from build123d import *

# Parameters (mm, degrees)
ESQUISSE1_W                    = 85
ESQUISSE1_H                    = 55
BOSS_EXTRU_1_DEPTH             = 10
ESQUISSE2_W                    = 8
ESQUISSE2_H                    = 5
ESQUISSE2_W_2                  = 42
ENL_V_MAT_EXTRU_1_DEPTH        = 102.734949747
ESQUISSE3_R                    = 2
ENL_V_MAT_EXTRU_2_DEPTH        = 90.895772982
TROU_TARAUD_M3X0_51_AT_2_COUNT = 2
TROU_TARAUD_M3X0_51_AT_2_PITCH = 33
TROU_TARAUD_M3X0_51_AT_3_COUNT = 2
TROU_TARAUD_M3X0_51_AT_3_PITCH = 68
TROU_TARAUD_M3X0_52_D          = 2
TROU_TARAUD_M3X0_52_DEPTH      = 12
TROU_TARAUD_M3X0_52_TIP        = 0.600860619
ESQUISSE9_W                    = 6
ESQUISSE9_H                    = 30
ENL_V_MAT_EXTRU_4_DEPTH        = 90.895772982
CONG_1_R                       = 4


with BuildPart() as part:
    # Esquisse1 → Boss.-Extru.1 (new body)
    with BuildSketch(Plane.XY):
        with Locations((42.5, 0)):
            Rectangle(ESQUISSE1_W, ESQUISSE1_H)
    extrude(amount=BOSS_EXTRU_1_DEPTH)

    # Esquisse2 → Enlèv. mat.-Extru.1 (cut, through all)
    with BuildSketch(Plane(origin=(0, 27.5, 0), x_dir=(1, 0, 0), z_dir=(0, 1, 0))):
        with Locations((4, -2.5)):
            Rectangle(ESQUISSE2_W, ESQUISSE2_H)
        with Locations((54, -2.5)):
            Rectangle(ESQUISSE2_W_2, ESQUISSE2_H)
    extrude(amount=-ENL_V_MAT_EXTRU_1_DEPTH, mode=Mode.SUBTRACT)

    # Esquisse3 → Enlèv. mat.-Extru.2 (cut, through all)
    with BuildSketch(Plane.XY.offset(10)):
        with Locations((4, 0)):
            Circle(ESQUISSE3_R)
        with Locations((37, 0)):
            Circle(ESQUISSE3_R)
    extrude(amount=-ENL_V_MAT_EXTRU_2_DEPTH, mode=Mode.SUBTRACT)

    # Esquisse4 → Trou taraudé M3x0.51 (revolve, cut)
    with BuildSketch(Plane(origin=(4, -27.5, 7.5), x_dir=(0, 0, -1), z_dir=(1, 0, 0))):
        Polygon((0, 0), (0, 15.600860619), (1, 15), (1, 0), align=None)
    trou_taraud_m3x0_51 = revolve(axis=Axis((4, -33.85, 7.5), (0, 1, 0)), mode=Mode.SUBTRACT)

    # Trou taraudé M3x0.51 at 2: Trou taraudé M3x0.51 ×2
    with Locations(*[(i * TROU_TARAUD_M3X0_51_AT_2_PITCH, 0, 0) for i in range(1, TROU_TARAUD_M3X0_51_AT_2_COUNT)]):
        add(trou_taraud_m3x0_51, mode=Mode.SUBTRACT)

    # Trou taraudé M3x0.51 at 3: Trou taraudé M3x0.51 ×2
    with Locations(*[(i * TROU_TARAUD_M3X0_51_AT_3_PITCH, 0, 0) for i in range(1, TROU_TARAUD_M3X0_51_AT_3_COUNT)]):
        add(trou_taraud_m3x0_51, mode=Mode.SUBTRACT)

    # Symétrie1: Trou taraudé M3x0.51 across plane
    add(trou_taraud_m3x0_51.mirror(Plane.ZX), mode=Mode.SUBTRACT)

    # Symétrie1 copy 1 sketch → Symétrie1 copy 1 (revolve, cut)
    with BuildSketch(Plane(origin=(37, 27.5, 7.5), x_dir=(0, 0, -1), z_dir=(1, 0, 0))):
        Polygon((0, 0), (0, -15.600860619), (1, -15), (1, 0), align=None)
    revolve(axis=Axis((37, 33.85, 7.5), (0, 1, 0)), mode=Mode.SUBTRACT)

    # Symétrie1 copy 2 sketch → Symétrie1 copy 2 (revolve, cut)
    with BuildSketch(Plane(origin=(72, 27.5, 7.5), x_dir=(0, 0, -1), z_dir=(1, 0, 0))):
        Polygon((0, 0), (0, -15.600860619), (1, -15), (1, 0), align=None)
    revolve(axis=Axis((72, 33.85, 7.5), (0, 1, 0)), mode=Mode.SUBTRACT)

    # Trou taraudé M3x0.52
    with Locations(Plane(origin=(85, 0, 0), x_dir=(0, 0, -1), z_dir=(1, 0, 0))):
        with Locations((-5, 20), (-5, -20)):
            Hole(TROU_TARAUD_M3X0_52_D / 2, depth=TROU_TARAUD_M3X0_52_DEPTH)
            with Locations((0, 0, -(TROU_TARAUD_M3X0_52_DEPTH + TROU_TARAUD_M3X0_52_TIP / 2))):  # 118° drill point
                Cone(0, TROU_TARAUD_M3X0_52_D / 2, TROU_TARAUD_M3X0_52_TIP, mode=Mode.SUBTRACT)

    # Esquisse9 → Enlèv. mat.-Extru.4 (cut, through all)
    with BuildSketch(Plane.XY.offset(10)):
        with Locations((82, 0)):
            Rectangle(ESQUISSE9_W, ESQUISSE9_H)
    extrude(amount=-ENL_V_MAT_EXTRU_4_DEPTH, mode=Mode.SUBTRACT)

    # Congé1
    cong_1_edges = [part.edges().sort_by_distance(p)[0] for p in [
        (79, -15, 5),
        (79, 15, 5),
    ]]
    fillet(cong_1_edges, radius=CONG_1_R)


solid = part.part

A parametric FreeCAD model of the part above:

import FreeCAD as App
import Part
import Sketcher
from FreeCAD import Vector
Q = App.Units.Quantity


def edges_at(feature, points):
    """Names of the edges that pass closest to the given points."""
    edges = feature.Shape.Edges
    near = lambda p: min(range(len(edges)), key=lambda i: edges[i].distToShape(Part.Vertex(*p))[0])
    return sorted({f"Edge{near(p) + 1}" for p in points})

doc = App.newDocument("Part")
body = doc.addObject("PartDesign::Body", "Body")

sketch1 = doc.addObject("Sketcher::SketchObject", "Sketch")
body.addObject(sketch1)
sketch1.AttachmentSupport = (doc.XY_Plane, [""])
sketch1.MapMode = "FlatFace"
sketch1.addGeometry([
    Part.LineSegment(Vector(0, 28, 0), Vector(0, -28, 0)),
    Part.LineSegment(Vector(0, -28, 0), Vector(85, -28, 0)),
    Part.LineSegment(Vector(85, -28, 0), Vector(85, 28, 0)),
    Part.LineSegment(Vector(85, 28, 0), Vector(0, 28, 0)),
], False)
sketch1.addConstraint([
    Sketcher.Constraint("Coincident", 0, 2, 1, 1),
    Sketcher.Constraint("Coincident", 1, 2, 2, 1),
    Sketcher.Constraint("Coincident", 2, 2, 3, 1),
    Sketcher.Constraint("Coincident", 3, 2, 0, 1),
    Sketcher.Constraint("Vertical", 0),
    Sketcher.Constraint("Horizontal", 1),
    Sketcher.Constraint("Vertical", 2),
    Sketcher.Constraint("Horizontal", 3),
    Sketcher.Constraint("Symmetric", 0, 2, 3, 2, -1, 1),
    Sketcher.Constraint("DistanceX", 1, 1, 1, 2, Q("85 mm")),
    Sketcher.Constraint("DistanceY", 0, 2, 0, 1, Q("55 mm")),
])
pad1 = doc.addObject("PartDesign::Pad", "Pad")
body.addObject(pad1)
pad1.Profile = sketch1
pad1.Length = 10

sketch2 = doc.addObject("Sketcher::SketchObject", "Sketch001")
body.addObject(sketch2)
sketch2.AttachmentSupport = (doc.XZ_Plane, [""])
sketch2.MapMode = "FlatFace"
sketch2.AttachmentOffset = App.Placement(Vector(0, 0, -27.5), App.Rotation())
sketch2.addGeometry([
    Part.LineSegment(Vector(0, 0, 0), Vector(0, 5, 0)),
    Part.LineSegment(Vector(0, 5, 0), Vector(8, 5, 0)),
    Part.LineSegment(Vector(8, 5, 0), Vector(8, 0, 0)),
    Part.LineSegment(Vector(8, 0, 0), Vector(0, 0, 0)),
    Part.LineSegment(Vector(33, 0, 0), Vector(33, 5, 0)),
    Part.LineSegment(Vector(33, 5, 0), Vector(75, 5, 0)),
    Part.LineSegment(Vector(75, 5, 0), Vector(75, 0, 0)),
    Part.LineSegment(Vector(75, 0, 0), Vector(33, 0, 0)),
], False)
sketch2.addConstraint([
    Sketcher.Constraint("Coincident", 0, 2, 1, 1),
    Sketcher.Constraint("Coincident", 1, 2, 2, 1),
    Sketcher.Constraint("Coincident", 2, 2, 3, 1),
    Sketcher.Constraint("Coincident", 3, 2, 0, 1),
    Sketcher.Constraint("Coincident", 4, 2, 5, 1),
    Sketcher.Constraint("Coincident", 5, 2, 6, 1),
    Sketcher.Constraint("Coincident", 6, 2, 7, 1),
    Sketcher.Constraint("Coincident", 7, 2, 4, 1),
    Sketcher.Constraint("Vertical", 0),
    Sketcher.Constraint("Horizontal", 1),
    Sketcher.Constraint("Vertical", 2),
    Sketcher.Constraint("Horizontal", 3),
    Sketcher.Constraint("Vertical", 4),
    Sketcher.Constraint("Horizontal", 5),
    Sketcher.Constraint("Vertical", 6),
    Sketcher.Constraint("Horizontal", 7),
    Sketcher.Constraint("Coincident", 3, 2, -1, 1),
    Sketcher.Constraint("PointOnObject", 6, 2, -1),
    Sketcher.Constraint("Horizontal", 1, 2, 4, 2),
    Sketcher.Constraint("DistanceX", 1, 1, 1, 2, Q("8 mm")),
    Sketcher.Constraint("DistanceX", 5, 1, 5, 2, Q("42 mm")),
    Sketcher.Constraint("DistanceY", 0, 1, 0, 2, Q("5 mm")),
    Sketcher.Constraint("DistanceX", -1, 1, 4, 2, Q("33 mm")),
])
pocket1 = doc.addObject("PartDesign::Pocket", "Pocket")
body.addObject(pocket1)
pocket1.Profile = sketch2
pocket1.Type = "ThroughAll"
pocket1.Reversed = True

sketch3 = doc.addObject("Sketcher::SketchObject", "Sketch002")
body.addObject(sketch3)
sketch3.AttachmentSupport = (doc.XY_Plane, [""])
sketch3.MapMode = "FlatFace"
sketch3.AttachmentOffset = App.Placement(Vector(0, 0, 10), App.Rotation())
sketch3.addGeometry([
    Part.Circle(Vector(4, 0, 0), Vector(0, 0, 1), 2),
    Part.Circle(Vector(37, 0, 0), Vector(0, 0, 1), 2),
], False)
sketch3.addConstraint([
    Sketcher.Constraint("Equal", 0, 1),
    Sketcher.Constraint("PointOnObject", 0, 3, -1),
    Sketcher.Constraint("PointOnObject", 1, 3, -1),
    Sketcher.Constraint("Diameter", 0, Q("4 mm")),
    Sketcher.Constraint("DistanceX", -1, 1, 0, 3, Q("4 mm")),
    Sketcher.Constraint("DistanceX", -1, 1, 1, 3, Q("37 mm")),
])
pocket2 = doc.addObject("PartDesign::Pocket", "Pocket001")
body.addObject(pocket2)
pocket2.Profile = sketch3
pocket2.Type = "ThroughAll"

sketch4 = doc.addObject("Sketcher::SketchObject", "Sketch003")
body.addObject(sketch4)
sketch4.AttachmentSupport = (doc.YZ_Plane, [""])
sketch4.MapMode = "FlatFace"
sketch4.AttachmentOffset = App.Placement(Vector(0, 0, 4), App.Rotation())
sketch4.addGeometry([
    Part.LineSegment(Vector(-11.9, 7.5, 0), Vector(-27.5, 7.5, 0)),
    Part.LineSegment(Vector(-27.5, 7.5, 0), Vector(-27.5, 6.5, 0)),
    Part.LineSegment(Vector(-27.5, 6.5, 0), Vector(-12.5, 6.5, 0)),
    Part.LineSegment(Vector(-12.5, 6.5, 0), Vector(-11.9, 7.5, 0)),
], False)
sketch4.addGeometry(Part.LineSegment(Vector(-27.5, 7.5, 0), Vector(-11.9, 7.5, 0)), True)
sketch4.addConstraint([
    Sketcher.Constraint("Coincident", 0, 2, 1, 1),
    Sketcher.Constraint("Coincident", 1, 2, 2, 1),
    Sketcher.Constraint("Coincident", 2, 2, 3, 1),
    Sketcher.Constraint("Coincident", 3, 2, 0, 1),
    Sketcher.Constraint("Horizontal", 0),
    Sketcher.Constraint("Vertical", 1),
    Sketcher.Constraint("Horizontal", 2),
    Sketcher.Constraint("Horizontal", 4),
    Sketcher.Constraint("Coincident", 4, 1, 0, 2),
    Sketcher.Constraint("Equal", 0, 4),
    Sketcher.Constraint("DistanceX", 2, 1, 2, 2, Q("15 mm")),
    Sketcher.Constraint("DistanceY", 1, 2, 1, 1, Q("1 mm")),
    Sketcher.Constraint("Angle", 3, Q("59 deg")),
    Sketcher.Constraint("DistanceX", 0, 2, -1, 1, Q("27.5 mm")),
    Sketcher.Constraint("DistanceY", -1, 1, 0, 2, Q("7.5 mm")),
])
groove = doc.addObject("PartDesign::Groove", "Groove")
body.addObject(groove)
groove.Profile = sketch4
groove.ReferenceAxis = (sketch4, ["Axis0"])
groove.Angle = 360
doc.recompute()

linearpattern = doc.addObject("PartDesign::LinearPattern", "LinearPattern")
body.addObject(linearpattern)
linearpattern.Originals = [groove]
linearpattern.Direction = (doc.X_Axis, [""])
linearpattern.Mode = "offset"
linearpattern.Offset = 33
linearpattern.Occurrences = 2
body.Tip = linearpattern
doc.recompute()

linearpattern2 = doc.addObject("PartDesign::LinearPattern", "LinearPattern001")
body.addObject(linearpattern2)
linearpattern2.Originals = [groove]
linearpattern2.Direction = (doc.X_Axis, [""])
linearpattern2.Mode = "offset"
linearpattern2.Offset = 68
linearpattern2.Occurrences = 2
body.Tip = linearpattern2
doc.recompute()

mirrored = doc.addObject("PartDesign::Mirrored", "Mirrored")
body.addObject(mirrored)
mirrored.Originals = [groove]
mirrored.MirrorPlane = (doc.XZ_Plane, [""])
body.Tip = mirrored

sketch5 = doc.addObject("Sketcher::SketchObject", "Sketch004")
body.addObject(sketch5)
sketch5.AttachmentSupport = (doc.YZ_Plane, [""])
sketch5.MapMode = "FlatFace"
sketch5.AttachmentOffset = App.Placement(Vector(0, 0, 37), App.Rotation())
sketch5.addGeometry([
    Part.LineSegment(Vector(27.5, 7.5, 0), Vector(11.9, 7.5, 0)),
    Part.LineSegment(Vector(11.9, 7.5, 0), Vector(12.5, 6.5, 0)),
    Part.LineSegment(Vector(12.5, 6.5, 0), Vector(27.5, 6.5, 0)),
    Part.LineSegment(Vector(27.5, 6.5, 0), Vector(27.5, 7.5, 0)),
], False)
sketch5.addGeometry(Part.LineSegment(Vector(11.9, 7.5, 0), Vector(27.5, 7.5, 0)), True)
sketch5.addConstraint([
    Sketcher.Constraint("Coincident", 0, 2, 1, 1),
    Sketcher.Constraint("Coincident", 1, 2, 2, 1),
    Sketcher.Constraint("Coincident", 2, 2, 3, 1),
    Sketcher.Constraint("Coincident", 3, 2, 0, 1),
    Sketcher.Constraint("Horizontal", 0),
    Sketcher.Constraint("Horizontal", 2),
    Sketcher.Constraint("Vertical", 3),
    Sketcher.Constraint("Horizontal", 4),
    Sketcher.Constraint("Coincident", 4, 1, 0, 2),
    Sketcher.Constraint("Vertical", 2, 2, 4, 2),
    Sketcher.Constraint("DistanceX", 2, 1, 2, 2, Q("15 mm")),
    Sketcher.Constraint("DistanceY", 3, 1, 3, 2, Q("1 mm")),
    Sketcher.Constraint("Angle", 1, Q("-59 deg")),
    Sketcher.Constraint("DistanceY", -1, 1, 0, 2, Q("7.5 mm")),
    Sketcher.Constraint("DistanceX", -1, 1, 1, 2, Q("12.5 mm")),
])
groove2 = doc.addObject("PartDesign::Groove", "Groove001")
body.addObject(groove2)
groove2.Profile = sketch5
groove2.ReferenceAxis = (sketch5, ["Axis0"])
groove2.Angle = 360

sketch6 = doc.addObject("Sketcher::SketchObject", "Sketch005")
body.addObject(sketch6)
sketch6.AttachmentSupport = (doc.YZ_Plane, [""])
sketch6.MapMode = "FlatFace"
sketch6.AttachmentOffset = App.Placement(Vector(0, 0, 72), App.Rotation())
sketch6.addGeometry([
    Part.LineSegment(Vector(27.5, 7.5, 0), Vector(11.9, 7.5, 0)),
    Part.LineSegment(Vector(11.9, 7.5, 0), Vector(12.5, 6.5, 0)),
    Part.LineSegment(Vector(12.5, 6.5, 0), Vector(27.5, 6.5, 0)),
    Part.LineSegment(Vector(27.5, 6.5, 0), Vector(27.5, 7.5, 0)),
], False)
sketch6.addGeometry(Part.LineSegment(Vector(11.9, 7.5, 0), Vector(27.5, 7.5, 0)), True)
sketch6.addConstraint([
    Sketcher.Constraint("Coincident", 0, 2, 1, 1),
    Sketcher.Constraint("Coincident", 1, 2, 2, 1),
    Sketcher.Constraint("Coincident", 2, 2, 3, 1),
    Sketcher.Constraint("Coincident", 3, 2, 0, 1),
    Sketcher.Constraint("Horizontal", 0),
    Sketcher.Constraint("Horizontal", 2),
    Sketcher.Constraint("Vertical", 3),
    Sketcher.Constraint("Horizontal", 4),
    Sketcher.Constraint("Coincident", 4, 1, 0, 2),
    Sketcher.Constraint("Vertical", 2, 2, 4, 2),
    Sketcher.Constraint("DistanceX", 2, 1, 2, 2, Q("15 mm")),
    Sketcher.Constraint("DistanceY", 3, 1, 3, 2, Q("1 mm")),
    Sketcher.Constraint("Angle", 1, Q("-59 deg")),
    Sketcher.Constraint("DistanceY", -1, 1, 0, 2, Q("7.5 mm")),
    Sketcher.Constraint("DistanceX", -1, 1, 1, 2, Q("12.5 mm")),
])
groove3 = doc.addObject("PartDesign::Groove", "Groove002")
body.addObject(groove3)
groove3.Profile = sketch6
groove3.ReferenceAxis = (sketch6, ["Axis0"])
groove3.Angle = 360

sketch7 = doc.addObject("Sketcher::SketchObject", "Sketch006")
body.addObject(sketch7)
sketch7.AttachmentSupport = (doc.YZ_Plane, [""])
sketch7.MapMode = "FlatFace"
sketch7.AttachmentOffset = App.Placement(Vector(0, 0, 85), App.Rotation())
sketch7.addGeometry([
    Part.Circle(Vector(20, 5, 0), Vector(0, 0, 1), 1),
    Part.Circle(Vector(-20, 5, 0), Vector(0, 0, 1), 1),
], False)
sketch7.addConstraint([
    Sketcher.Constraint("Equal", 0, 1),
    Sketcher.Constraint("Symmetric", 0, 3, 1, 3, -2),
    Sketcher.Constraint("Diameter", 0, Q("2 mm")),
    Sketcher.Constraint("DistanceX", -1, 1, 0, 3, Q("20 mm")),
    Sketcher.Constraint("DistanceY", -1, 1, 0, 3, Q("5 mm")),
])
doc.recompute()
hole = doc.addObject("PartDesign::Hole", "Hole")
body.addObject(hole)
hole.Profile = sketch7
hole.ThreadType = "None"
hole.Diameter = 2
hole.DepthType = "Dimension"
hole.Depth = 12
hole.DrillPoint = "Angled"
hole.DrillPointAngle = 118

sketch8 = doc.addObject("Sketcher::SketchObject", "Sketch007")
body.addObject(sketch8)
sketch8.AttachmentSupport = (doc.XY_Plane, [""])
sketch8.MapMode = "FlatFace"
sketch8.AttachmentOffset = App.Placement(Vector(0, 0, 10), App.Rotation())
sketch8.addGeometry([
    Part.LineSegment(Vector(79, 15, 0), Vector(79, -15, 0)),
    Part.LineSegment(Vector(79, -15, 0), Vector(85, -15, 0)),
    Part.LineSegment(Vector(85, -15, 0), Vector(85, 15, 0)),
    Part.LineSegment(Vector(85, 15, 0), Vector(79, 15, 0)),
], False)
sketch8.addConstraint([
    Sketcher.Constraint("Coincident", 0, 2, 1, 1),
    Sketcher.Constraint("Coincident", 1, 2, 2, 1),
    Sketcher.Constraint("Coincident", 2, 2, 3, 1),
    Sketcher.Constraint("Coincident", 3, 2, 0, 1),
    Sketcher.Constraint("Vertical", 0),
    Sketcher.Constraint("Horizontal", 1),
    Sketcher.Constraint("Vertical", 2),
    Sketcher.Constraint("Horizontal", 3),
    Sketcher.Constraint("DistanceX", 1, 1, 1, 2, Q("6 mm")),
    Sketcher.Constraint("DistanceY", 0, 2, 0, 1, Q("30 mm")),
    Sketcher.Constraint("DistanceX", -1, 1, 0, 2, Q("79 mm")),
    Sketcher.Constraint("DistanceY", 0, 2, -1, 1, Q("15 mm")),
])
pocket3 = doc.addObject("PartDesign::Pocket", "Pocket002")
body.addObject(pocket3)
pocket3.Profile = sketch8
pocket3.Type = "ThroughAll"
doc.recompute()

fillet = doc.addObject("PartDesign::Fillet", "Fillet")
body.addObject(fillet)
fillet.Base = (pocket3, edges_at(pocket3, [(79, -15, 5), (79, 15, 5)]))
fillet.Radius = 4

doc.recompute()
